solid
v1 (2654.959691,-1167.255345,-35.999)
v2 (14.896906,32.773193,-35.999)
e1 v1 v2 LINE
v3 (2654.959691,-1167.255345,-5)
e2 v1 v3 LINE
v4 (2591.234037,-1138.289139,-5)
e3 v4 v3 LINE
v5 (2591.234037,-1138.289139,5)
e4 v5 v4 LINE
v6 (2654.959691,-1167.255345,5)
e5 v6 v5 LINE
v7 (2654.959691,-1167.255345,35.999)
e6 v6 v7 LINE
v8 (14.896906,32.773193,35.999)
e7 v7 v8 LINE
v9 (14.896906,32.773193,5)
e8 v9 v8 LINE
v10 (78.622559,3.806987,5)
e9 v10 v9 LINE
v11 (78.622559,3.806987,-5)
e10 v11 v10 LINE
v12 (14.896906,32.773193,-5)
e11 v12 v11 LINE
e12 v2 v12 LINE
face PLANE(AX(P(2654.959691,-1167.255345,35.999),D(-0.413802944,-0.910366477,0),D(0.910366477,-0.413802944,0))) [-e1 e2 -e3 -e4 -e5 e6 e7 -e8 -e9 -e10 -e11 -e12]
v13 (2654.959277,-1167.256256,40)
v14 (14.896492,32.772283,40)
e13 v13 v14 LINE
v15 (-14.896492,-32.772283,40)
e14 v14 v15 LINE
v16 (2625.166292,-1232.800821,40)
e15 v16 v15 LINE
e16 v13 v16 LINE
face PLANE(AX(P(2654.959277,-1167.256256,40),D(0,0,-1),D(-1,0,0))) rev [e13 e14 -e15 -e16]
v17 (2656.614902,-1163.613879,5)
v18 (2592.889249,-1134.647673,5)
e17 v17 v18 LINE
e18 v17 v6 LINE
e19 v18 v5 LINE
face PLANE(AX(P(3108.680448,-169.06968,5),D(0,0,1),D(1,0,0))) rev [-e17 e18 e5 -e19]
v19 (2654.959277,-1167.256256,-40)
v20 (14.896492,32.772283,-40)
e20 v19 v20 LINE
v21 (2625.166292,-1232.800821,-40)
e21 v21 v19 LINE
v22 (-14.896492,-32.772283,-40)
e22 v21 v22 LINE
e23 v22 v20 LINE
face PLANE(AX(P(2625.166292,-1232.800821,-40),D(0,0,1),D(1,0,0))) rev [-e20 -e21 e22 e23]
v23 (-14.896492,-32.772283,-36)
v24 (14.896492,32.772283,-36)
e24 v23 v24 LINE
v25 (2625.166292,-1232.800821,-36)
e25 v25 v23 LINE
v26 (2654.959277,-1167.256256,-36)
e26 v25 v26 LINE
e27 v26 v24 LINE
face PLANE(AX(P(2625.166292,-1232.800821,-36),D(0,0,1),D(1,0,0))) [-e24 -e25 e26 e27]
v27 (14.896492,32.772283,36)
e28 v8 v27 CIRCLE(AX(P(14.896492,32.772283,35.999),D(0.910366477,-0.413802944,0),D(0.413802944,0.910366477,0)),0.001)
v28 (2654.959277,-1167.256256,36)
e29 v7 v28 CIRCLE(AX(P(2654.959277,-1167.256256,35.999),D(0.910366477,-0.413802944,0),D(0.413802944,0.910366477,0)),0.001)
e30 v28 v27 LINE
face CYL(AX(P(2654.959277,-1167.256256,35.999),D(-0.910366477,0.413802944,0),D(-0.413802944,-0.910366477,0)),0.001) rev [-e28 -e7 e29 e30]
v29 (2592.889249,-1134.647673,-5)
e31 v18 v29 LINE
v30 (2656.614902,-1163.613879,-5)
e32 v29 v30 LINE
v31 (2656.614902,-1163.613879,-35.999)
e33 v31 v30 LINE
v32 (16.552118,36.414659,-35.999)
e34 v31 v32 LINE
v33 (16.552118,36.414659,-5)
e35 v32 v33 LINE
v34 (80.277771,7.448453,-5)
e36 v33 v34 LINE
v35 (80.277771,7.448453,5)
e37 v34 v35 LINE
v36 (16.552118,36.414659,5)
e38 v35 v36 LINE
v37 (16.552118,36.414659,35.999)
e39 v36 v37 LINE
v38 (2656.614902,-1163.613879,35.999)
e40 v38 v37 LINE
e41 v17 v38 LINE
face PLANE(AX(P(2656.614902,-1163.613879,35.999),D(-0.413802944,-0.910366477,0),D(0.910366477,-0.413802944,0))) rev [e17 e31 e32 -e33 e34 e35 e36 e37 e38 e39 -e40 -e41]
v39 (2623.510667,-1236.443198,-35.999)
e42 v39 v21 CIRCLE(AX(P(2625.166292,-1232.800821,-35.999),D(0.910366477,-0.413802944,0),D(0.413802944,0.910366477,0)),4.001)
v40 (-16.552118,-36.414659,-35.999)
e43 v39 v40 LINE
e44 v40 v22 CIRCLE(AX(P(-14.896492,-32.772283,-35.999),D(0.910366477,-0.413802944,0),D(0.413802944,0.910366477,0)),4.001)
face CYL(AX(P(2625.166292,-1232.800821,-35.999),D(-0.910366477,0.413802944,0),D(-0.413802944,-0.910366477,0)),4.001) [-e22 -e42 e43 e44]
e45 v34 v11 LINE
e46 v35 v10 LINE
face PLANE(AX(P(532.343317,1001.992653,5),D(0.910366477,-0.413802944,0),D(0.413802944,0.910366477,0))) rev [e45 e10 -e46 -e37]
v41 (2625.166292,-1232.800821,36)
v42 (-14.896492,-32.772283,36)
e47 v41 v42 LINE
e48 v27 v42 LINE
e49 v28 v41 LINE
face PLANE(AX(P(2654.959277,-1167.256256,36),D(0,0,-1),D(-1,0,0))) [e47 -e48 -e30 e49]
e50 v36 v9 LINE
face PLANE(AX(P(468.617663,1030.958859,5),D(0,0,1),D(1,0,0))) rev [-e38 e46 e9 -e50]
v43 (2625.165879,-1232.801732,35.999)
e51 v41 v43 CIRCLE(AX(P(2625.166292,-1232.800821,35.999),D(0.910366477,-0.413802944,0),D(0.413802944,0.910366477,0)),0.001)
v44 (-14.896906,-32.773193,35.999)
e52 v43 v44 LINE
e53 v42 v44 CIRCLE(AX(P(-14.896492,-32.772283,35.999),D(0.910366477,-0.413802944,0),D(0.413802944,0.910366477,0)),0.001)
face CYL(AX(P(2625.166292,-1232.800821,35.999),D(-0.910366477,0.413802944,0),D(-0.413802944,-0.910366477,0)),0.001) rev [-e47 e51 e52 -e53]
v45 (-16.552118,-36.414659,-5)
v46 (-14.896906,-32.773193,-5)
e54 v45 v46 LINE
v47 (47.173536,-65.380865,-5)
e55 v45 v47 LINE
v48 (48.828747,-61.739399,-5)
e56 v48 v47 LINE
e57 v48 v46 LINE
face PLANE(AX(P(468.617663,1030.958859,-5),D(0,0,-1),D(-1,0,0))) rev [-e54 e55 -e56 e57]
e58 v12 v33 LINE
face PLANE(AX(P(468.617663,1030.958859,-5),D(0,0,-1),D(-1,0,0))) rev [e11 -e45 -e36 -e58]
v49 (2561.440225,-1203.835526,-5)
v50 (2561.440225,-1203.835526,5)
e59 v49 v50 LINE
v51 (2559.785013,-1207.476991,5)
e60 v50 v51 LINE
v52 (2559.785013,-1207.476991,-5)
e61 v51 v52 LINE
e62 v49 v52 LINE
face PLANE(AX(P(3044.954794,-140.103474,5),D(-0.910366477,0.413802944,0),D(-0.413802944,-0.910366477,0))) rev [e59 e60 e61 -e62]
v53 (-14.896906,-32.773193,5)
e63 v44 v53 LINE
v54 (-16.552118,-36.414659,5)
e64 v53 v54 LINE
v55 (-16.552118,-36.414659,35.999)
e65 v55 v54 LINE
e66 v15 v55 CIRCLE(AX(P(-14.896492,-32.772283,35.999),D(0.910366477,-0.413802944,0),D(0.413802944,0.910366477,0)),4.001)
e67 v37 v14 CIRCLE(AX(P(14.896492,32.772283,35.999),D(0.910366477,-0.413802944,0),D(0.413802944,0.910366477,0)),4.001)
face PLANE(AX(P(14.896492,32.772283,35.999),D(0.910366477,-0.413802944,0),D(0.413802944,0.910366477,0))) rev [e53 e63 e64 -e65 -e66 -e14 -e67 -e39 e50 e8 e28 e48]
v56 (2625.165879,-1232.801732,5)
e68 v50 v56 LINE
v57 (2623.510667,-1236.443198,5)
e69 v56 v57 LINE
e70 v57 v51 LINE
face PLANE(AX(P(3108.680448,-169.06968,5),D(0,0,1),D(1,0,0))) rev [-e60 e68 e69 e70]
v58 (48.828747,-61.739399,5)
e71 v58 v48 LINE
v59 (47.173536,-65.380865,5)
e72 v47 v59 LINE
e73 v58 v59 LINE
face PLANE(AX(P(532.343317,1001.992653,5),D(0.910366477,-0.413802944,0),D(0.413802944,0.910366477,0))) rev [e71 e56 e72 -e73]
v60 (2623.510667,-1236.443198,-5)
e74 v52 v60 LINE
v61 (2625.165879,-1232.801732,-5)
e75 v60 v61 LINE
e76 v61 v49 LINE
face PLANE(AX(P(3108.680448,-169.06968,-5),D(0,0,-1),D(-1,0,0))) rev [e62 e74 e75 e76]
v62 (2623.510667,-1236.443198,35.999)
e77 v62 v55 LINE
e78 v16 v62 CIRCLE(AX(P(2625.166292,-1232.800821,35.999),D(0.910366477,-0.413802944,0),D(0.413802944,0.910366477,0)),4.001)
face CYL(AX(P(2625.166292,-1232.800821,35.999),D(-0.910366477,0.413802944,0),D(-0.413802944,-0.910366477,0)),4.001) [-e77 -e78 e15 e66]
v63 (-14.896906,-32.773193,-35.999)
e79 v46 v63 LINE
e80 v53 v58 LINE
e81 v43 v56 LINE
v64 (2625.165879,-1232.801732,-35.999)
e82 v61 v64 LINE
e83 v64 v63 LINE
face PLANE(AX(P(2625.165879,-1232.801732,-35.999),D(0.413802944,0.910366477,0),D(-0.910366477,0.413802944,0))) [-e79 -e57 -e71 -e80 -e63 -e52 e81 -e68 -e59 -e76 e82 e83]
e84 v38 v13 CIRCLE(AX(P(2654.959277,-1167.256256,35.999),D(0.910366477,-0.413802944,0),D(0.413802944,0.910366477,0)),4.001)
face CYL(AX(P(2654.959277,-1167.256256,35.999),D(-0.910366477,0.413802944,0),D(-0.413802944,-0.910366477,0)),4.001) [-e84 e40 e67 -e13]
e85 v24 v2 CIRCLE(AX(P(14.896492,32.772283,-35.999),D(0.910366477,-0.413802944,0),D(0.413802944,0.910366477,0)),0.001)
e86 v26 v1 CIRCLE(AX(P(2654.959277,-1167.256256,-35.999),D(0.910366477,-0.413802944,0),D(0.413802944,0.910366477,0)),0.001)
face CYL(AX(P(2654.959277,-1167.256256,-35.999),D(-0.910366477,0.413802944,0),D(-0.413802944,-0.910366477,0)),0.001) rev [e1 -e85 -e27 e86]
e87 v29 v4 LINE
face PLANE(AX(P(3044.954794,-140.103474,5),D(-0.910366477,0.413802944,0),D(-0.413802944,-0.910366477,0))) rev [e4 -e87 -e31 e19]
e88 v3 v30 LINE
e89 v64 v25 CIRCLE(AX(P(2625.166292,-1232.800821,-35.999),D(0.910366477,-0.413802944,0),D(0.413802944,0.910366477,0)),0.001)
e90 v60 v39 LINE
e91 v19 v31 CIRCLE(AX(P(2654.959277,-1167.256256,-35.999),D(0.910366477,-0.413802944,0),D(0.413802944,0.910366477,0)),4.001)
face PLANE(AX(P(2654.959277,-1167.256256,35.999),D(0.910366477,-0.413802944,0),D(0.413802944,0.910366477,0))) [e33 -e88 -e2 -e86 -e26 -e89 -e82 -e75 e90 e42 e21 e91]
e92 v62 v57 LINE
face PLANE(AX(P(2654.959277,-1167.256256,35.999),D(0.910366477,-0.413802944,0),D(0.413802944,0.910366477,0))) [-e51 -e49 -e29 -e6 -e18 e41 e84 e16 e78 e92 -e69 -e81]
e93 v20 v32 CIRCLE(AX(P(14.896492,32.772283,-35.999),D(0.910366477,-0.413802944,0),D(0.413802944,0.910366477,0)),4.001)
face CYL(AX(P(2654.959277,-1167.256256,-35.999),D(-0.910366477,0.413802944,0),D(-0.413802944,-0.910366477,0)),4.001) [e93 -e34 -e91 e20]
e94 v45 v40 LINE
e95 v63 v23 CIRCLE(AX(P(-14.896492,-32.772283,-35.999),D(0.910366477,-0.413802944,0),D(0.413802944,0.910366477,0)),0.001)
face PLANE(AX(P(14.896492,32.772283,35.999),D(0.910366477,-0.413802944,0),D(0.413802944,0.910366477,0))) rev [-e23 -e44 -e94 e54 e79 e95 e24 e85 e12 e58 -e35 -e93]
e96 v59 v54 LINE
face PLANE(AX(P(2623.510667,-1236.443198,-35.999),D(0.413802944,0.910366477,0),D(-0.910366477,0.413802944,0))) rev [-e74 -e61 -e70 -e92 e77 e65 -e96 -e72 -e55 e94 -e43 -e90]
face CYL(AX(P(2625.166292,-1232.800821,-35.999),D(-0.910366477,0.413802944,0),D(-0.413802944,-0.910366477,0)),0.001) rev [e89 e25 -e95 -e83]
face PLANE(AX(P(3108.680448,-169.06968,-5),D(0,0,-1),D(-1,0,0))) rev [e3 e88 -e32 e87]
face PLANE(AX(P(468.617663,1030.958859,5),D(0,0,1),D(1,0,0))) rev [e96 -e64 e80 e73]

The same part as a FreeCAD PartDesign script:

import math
import FreeCAD as App
import Part
import Sketcher

V = App.Vector
Q = App.Units.Quantity

doc = App.newDocument("Part")
body = doc.addObject("PartDesign::Body", "Body")

# Sketch on an angled plane
sketch1 = doc.addObject("Sketcher::SketchObject", "Sketch")
body.addObject(sketch1)
sketch1.Placement = App.Placement(V(0, 0, 0), App.Rotation(V(0.413802944, 0.910366477, 0), V(0, 0, 0.999999999), V(0.910366477, -0.413802944, 0), "ZXY"))
sketch1.addGeometry([
    Part.LineSegment(V(-35.999, -40, 0), V(35.999, -40, 0)),  # 0
    Part.ArcOfCircle(Part.Circle(V(35.999, -35.999, 0), V(0, 0, 1), 4.001), math.radians(-90), math.radians(0)),  # 1
    Part.LineSegment(V(40, -35.999, 0), V(40, 35.999, 0)),  # 2
    Part.ArcOfCircle(Part.Circle(V(35.999, 35.999, 0), V(0, 0, 1), 4.001), math.radians(0), math.radians(90)),  # 3
    Part.LineSegment(V(35.999, 40, 0), V(-35.999, 40, 0)),  # 4
    Part.ArcOfCircle(Part.Circle(V(-35.999, 35.999, 0), V(0, 0, 1), 4.001), math.radians(90), math.radians(180)),  # 5
    Part.LineSegment(V(-40, 35.999, 0), V(-40, -35.999, 0)),  # 6
    Part.ArcOfCircle(Part.Circle(V(-35.999, -35.999, 0), V(0, 0, 1), 4.001), math.radians(180), math.radians(270)),  # 7
    Part.LineSegment(V(35.999, -36, 0), V(-35.999, -36, 0)),  # 8
    Part.ArcOfCircle(Part.Circle(V(-35.999, -35.999, 0), V(0, 0, 1), 0.001), math.radians(180), math.radians(270)),  # 9
    Part.LineSegment(V(-36, -35.999, 0), V(-36, 35.999, 0)),  # 10
    Part.ArcOfCircle(Part.Circle(V(-35.999, 35.999, 0), V(0, 0, 1), 0.001), math.radians(90), math.radians(180)),  # 11
    Part.LineSegment(V(-35.999, 36, 0), V(35.999, 36, 0)),  # 12
    Part.ArcOfCircle(Part.Circle(V(35.999, 35.999, 0), V(0, 0, 1), 0.001), math.radians(0), math.radians(90)),  # 13
    Part.LineSegment(V(36, 35.999, 0), V(36, -35.999, 0)),  # 14
    Part.ArcOfCircle(Part.Circle(V(35.999, -35.999, 0), V(0, 0, 1), 0.001), math.radians(-90), math.radians(0)),  # 15
], False)
sketch1.addConstraint([
    Sketcher.Constraint("Tangent", 0, 2, 1, 1),
    Sketcher.Constraint("Tangent", 1, 2, 2, 1),
    Sketcher.Constraint("Tangent", 2, 2, 3, 1),
    Sketcher.Constraint("Tangent", 3, 2, 4, 1),
    Sketcher.Constraint("Tangent", 4, 2, 5, 1),
    Sketcher.Constraint("Tangent", 5, 2, 6, 1),
    Sketcher.Constraint("Tangent", 6, 2, 7, 1),
    Sketcher.Constraint("Tangent", 7, 2, 0, 1),
    Sketcher.Constraint("Tangent", 8, 2, 9, 2),
    Sketcher.Constraint("Tangent", 9, 1, 10, 1),
    Sketcher.Constraint("Tangent", 10, 2, 11, 2),
    Sketcher.Constraint("Tangent", 11, 1, 12, 1),
    Sketcher.Constraint("Tangent", 12, 2, 13, 2),
    Sketcher.Constraint("Tangent", 13, 1, 14, 1),
    Sketcher.Constraint("Tangent", 14, 2, 15, 2),
    Sketcher.Constraint("Tangent", 15, 1, 8, 1),
    Sketcher.Constraint("Horizontal", 0),
    Sketcher.Constraint("Vertical", 2),
    Sketcher.Constraint("Horizontal", 4),
    Sketcher.Constraint("Vertical", 6),
    Sketcher.Constraint("Horizontal", 8),
    Sketcher.Constraint("Vertical", 10),
    Sketcher.Constraint("Horizontal", 12),
    Sketcher.Constraint("Vertical", 14),
    Sketcher.Constraint("Coincident", 9, 3, 7, 3),
    Sketcher.Constraint("Coincident", 11, 3, 5, 3),
    Sketcher.Constraint("Coincident", 13, 3, 3, 3),
    Sketcher.Constraint("Equal", 1, 3),
    Sketcher.Constraint("Equal", 3, 5),
    Sketcher.Constraint("Equal", 5, 7),
    Sketcher.Constraint("Equal", 13, 15),
    Sketcher.Constraint("Symmetric", 1, 3, 5, 3, -1, 1),
    Sketcher.Constraint("Equal", 12, 2),
    Sketcher.Constraint("DistanceY", 0, 2, -1, 1, Q("40 mm")),
    Sketcher.Constraint("DistanceY", 8, 2, -1, 1, Q("36 mm")),
    Sketcher.Constraint("Radius", 1, Q("4.001 mm")),
])
pad1 = doc.addObject("PartDesign::Pad", "Pad")
body.addObject(pad1)
pad1.Profile = sketch1
pad1.Length = 2900

# Sketch on an angled plane
sketch2 = doc.addObject("Sketcher::SketchObject", "Sketch001")
body.addObject(sketch2)
sketch2.Placement = App.Placement(V(-16.552118, -36.414659, 0), App.Rotation(V(0.910366477, -0.413802944, 0), V(0, 0, 0.999999999), V(-0.413802944, -0.910366477, 0), "ZXY"))
sketch2.addGeometry([
    Part.LineSegment(V(0, 5, 0), V(0, -5, 0)),  # 0
    Part.LineSegment(V(0, -5, 0), V(70, -5, 0)),  # 1
    Part.LineSegment(V(70, -5, 0), V(70, 5, 0)),  # 2
    Part.LineSegment(V(70, 5, 0), V(0, 5, 0)),  # 3
    Part.LineSegment(V(2830, 5, 0), V(2830, -5, 0)),  # 4
    Part.LineSegment(V(2830, -5, 0), V(2900, -5, 0)),  # 5
    Part.LineSegment(V(2900, -5, 0), V(2900, 5, 0)),  # 6
    Part.LineSegment(V(2900, 5, 0), V(2830, 5, 0)),  # 7
], False)
sketch2.addConstraint([
    Sketcher.Constraint("Coincident", 0, 2, 1, 1),
    Sketcher.Constraint("Coincident", 1, 2, 2, 1),
    Sketcher.Constraint("Coincident", 2, 2, 3, 1),
    Sketcher.Constraint("Coincident", 3, 2, 0, 1),
    Sketcher.Constraint("Coincident", 4, 2, 5, 1),
    Sketcher.Constraint("Coincident", 5, 2, 6, 1),
    Sketcher.Constraint("Coincident", 6, 2, 7, 1),
    Sketcher.Constraint("Coincident", 7, 2, 4, 1),
    Sketcher.Constraint("Vertical", 0),
    Sketcher.Constraint("Horizontal", 1),
    Sketcher.Constraint("Vertical", 2),
    Sketcher.Constraint("Horizontal", 3),
    Sketcher.Constraint("Vertical", 4),
    Sketcher.Constraint("Horizontal", 5),
    Sketcher.Constraint("Vertical", 6),
    Sketcher.Constraint("Horizontal", 7),
    Sketcher.Constraint("Symmetric", 0, 2, 3, 2, -1, 1),
    Sketcher.Constraint("Horizontal", 1, 2, 4, 2),
    Sketcher.Constraint("Horizontal", 3, 2, 6, 2),
    Sketcher.Constraint("Equal", 3, 5),
    Sketcher.Constraint("DistanceX", 1, 1, 1, 2, Q("70 mm")),
    Sketcher.Constraint("DistanceY", 0, 2, 0, 1, Q("10 mm")),
    Sketcher.Constraint("DistanceX", -1, 1, 4, 2, Q("2829.999997 mm")),
])
pocket1 = doc.addObject("PartDesign::Pocket", "Pocket")
body.addObject(pocket1)
pocket1.Profile = sketch2
pocket1.Type = "ThroughAll"

doc.recompute()
